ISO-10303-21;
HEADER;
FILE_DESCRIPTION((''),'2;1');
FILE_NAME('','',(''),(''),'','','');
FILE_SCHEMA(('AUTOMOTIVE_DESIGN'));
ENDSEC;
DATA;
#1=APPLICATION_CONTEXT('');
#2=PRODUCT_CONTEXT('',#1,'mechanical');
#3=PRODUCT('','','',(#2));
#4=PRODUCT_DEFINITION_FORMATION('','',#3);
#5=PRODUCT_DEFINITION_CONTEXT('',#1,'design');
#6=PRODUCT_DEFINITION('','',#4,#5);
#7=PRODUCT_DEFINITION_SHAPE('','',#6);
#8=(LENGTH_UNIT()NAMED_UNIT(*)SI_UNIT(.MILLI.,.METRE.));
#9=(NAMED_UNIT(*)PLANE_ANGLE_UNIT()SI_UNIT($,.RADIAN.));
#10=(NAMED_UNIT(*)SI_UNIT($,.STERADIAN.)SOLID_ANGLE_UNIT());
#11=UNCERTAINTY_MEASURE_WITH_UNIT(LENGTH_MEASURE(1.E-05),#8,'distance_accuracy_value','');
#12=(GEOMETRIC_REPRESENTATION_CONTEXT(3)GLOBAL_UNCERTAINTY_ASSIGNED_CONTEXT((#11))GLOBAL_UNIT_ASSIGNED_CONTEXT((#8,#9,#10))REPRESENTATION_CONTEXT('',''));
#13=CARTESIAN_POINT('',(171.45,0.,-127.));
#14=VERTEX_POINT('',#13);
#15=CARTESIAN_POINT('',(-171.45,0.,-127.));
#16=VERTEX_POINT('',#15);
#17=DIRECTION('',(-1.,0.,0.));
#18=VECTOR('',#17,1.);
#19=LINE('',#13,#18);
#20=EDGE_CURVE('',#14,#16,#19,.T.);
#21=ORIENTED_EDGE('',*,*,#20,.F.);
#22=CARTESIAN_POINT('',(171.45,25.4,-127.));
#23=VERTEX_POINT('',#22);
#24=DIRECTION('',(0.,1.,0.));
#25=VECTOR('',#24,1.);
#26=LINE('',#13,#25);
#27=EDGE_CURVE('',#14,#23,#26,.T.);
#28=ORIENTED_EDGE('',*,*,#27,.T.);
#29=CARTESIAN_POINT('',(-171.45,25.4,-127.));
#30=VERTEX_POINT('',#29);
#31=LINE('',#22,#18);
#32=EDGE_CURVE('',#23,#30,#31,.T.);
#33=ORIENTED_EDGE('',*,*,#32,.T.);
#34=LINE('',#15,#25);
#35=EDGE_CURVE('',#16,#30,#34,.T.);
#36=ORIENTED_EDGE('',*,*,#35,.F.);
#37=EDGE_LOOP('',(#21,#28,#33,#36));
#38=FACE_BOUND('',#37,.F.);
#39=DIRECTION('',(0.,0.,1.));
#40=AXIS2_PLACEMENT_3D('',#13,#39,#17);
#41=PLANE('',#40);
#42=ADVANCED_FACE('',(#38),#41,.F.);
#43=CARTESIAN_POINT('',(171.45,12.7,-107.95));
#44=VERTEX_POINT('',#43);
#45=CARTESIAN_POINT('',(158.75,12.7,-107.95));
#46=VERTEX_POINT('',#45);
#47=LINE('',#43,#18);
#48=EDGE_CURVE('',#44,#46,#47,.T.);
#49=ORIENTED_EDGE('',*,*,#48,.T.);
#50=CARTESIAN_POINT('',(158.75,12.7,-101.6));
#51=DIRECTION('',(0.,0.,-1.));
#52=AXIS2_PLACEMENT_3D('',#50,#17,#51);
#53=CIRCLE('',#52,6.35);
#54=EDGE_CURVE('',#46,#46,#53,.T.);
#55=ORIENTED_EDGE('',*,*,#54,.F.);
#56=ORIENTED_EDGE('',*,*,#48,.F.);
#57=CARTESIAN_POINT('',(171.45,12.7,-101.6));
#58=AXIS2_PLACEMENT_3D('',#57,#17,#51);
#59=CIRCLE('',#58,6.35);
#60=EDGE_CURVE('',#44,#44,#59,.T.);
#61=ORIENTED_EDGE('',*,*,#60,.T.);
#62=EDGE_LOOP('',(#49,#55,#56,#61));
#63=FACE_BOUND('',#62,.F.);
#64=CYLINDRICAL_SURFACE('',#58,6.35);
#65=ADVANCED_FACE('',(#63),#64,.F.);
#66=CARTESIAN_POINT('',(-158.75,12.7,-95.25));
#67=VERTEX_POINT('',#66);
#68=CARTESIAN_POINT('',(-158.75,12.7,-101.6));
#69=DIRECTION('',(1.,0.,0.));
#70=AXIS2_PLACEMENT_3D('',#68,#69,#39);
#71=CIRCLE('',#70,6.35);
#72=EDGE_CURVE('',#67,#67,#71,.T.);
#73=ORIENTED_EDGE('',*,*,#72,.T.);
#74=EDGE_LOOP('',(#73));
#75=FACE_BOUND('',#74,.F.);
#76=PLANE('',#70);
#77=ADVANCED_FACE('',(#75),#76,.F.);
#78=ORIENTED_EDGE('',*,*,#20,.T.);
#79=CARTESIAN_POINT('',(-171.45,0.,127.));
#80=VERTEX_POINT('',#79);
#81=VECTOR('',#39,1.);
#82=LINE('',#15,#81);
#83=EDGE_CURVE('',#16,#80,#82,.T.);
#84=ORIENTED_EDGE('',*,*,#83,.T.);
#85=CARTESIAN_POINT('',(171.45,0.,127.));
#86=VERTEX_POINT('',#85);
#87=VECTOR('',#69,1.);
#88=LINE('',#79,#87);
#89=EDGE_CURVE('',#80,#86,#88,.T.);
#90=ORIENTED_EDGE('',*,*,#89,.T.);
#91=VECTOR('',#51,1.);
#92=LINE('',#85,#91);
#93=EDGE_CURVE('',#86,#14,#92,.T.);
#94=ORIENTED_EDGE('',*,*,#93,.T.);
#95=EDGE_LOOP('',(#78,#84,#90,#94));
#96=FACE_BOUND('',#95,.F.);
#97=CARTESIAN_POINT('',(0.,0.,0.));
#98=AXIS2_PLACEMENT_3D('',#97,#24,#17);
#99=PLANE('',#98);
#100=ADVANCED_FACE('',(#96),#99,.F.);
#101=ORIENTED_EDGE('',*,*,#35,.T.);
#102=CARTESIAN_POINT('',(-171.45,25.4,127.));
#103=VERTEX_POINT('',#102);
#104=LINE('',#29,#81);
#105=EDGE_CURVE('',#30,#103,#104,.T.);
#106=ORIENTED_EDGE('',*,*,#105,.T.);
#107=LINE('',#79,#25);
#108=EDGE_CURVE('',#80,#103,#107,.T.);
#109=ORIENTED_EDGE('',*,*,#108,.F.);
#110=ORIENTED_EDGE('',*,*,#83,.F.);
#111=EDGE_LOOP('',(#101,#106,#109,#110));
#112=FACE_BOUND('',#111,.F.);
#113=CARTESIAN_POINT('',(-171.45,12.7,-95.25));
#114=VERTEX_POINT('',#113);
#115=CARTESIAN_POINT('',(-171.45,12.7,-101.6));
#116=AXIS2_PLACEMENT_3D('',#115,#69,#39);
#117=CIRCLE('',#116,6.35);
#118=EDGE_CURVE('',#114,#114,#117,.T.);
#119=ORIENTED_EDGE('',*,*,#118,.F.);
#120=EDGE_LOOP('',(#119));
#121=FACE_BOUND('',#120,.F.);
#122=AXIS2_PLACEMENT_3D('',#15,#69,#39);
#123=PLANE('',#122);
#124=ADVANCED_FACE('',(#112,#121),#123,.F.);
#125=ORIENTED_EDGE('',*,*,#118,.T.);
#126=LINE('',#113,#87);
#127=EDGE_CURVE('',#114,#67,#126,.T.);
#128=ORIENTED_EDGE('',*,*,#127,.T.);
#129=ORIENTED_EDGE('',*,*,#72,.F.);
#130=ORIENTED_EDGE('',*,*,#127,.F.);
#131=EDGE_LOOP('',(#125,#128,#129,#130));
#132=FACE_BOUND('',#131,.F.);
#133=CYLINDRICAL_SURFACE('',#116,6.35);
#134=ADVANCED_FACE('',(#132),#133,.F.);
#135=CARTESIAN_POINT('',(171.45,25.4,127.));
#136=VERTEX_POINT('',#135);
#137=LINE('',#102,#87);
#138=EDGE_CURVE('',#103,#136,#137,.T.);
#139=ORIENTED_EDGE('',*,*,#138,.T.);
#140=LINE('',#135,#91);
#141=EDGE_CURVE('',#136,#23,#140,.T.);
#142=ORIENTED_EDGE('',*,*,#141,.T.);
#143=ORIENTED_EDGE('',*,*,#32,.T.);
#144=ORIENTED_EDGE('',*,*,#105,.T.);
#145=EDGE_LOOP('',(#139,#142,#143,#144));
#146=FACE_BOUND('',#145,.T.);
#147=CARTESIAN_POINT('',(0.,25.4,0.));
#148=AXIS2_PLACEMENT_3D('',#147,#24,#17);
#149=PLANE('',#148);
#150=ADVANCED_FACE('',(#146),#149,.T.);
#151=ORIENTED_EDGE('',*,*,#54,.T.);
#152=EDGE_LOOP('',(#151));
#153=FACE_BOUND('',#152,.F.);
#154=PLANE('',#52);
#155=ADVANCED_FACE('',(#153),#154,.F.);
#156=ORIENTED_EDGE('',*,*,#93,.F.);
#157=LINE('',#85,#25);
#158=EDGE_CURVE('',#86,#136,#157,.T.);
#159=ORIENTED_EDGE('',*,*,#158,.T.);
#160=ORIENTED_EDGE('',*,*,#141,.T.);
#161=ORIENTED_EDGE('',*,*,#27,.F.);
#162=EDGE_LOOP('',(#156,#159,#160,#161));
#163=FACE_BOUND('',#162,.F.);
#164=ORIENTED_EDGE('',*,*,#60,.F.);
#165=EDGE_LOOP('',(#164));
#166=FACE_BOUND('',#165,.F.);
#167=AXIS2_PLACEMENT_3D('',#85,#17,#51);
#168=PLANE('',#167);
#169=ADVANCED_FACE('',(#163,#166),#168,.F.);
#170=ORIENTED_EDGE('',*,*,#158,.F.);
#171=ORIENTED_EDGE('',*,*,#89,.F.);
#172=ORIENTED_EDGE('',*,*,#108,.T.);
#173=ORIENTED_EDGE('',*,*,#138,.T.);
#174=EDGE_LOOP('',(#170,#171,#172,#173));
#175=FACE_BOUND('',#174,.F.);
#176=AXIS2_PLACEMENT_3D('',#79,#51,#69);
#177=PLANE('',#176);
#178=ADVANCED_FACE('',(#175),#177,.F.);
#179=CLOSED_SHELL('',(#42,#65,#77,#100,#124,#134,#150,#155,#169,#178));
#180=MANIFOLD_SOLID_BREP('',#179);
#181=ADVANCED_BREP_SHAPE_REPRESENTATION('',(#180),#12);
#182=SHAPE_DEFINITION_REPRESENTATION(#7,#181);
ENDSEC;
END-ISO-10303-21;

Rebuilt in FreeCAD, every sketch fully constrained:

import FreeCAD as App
import Part
import Sketcher

V = App.Vector
Q = App.Units.Quantity

doc = App.newDocument("Part")
body = doc.addObject("PartDesign::Body", "Body")

# Sketch on XZ plane
sketch1 = doc.addObject("Sketcher::SketchObject", "Sketch")
body.addObject(sketch1)
sketch1.AttachmentSupport = (doc.XZ_Plane, [""])
sketch1.MapMode = "FlatFace"
sketch1.addGeometry(Part.LineSegment(V(-171, -127, 0), V(-171, 127, 0)), False)
sketch1.addGeometry(Part.LineSegment(V(-171, 127, 0), V(171, 127, 0)), False)
sketch1.addGeometry(Part.LineSegment(V(171, 127, 0), V(171, -127, 0)), False)
sketch1.addGeometry(Part.LineSegment(V(171, -127, 0), V(-171, -127, 0)), False)
sketch1.addConstraint(Sketcher.Constraint("Coincident", 0, 2, 1, 1))
sketch1.addConstraint(Sketcher.Constraint("Coincident", 1, 2, 2, 1))
sketch1.addConstraint(Sketcher.Constraint("Coincident", 2, 2, 3, 1))
sketch1.addConstraint(Sketcher.Constraint("Coincident", 3, 2, 0, 1))
sketch1.addConstraint(Sketcher.Constraint("Vertical", 0))
sketch1.addConstraint(Sketcher.Constraint("Horizontal", 1))
sketch1.addConstraint(Sketcher.Constraint("Vertical", 2))
sketch1.addConstraint(Sketcher.Constraint("Horizontal", 3))
sketch1.addConstraint(Sketcher.Constraint("Symmetric", 0, 2, 2, 2, -1, 1))
sketch1.addConstraint(Sketcher.Constraint("DistanceY", 0, 1, 0, 2, Q("10 in")))
sketch1.addConstraint(Sketcher.Constraint("DistanceX", 1, 1, 1, 2, Q("13.5 in")))
pad1 = doc.addObject("PartDesign::Pad", "Pad")
body.addObject(pad1)
pad1.Profile = sketch1
pad1.Length = Q("1 in")
pad1.Reversed = True

# Sketch on YZ plane
sketch2 = doc.addObject("Sketcher::SketchObject", "Sketch001")
body.addObject(sketch2)
sketch2.AttachmentSupport = (doc.YZ_Plane, [""])
sketch2.MapMode = "FlatFace"
sketch2.AttachmentOffset = App.Placement(V(0, 0, 6.75 * 25.4), App.Rotation())
sketch2.addGeometry(Part.Circle(V(13, -102, 0), V(0, 0, 1), 6), False)
sketch2.addConstraint(Sketcher.Constraint("Diameter", 0, Q("0.5 in")))
sketch2.addConstraint(Sketcher.Constraint("DistanceY", 0, 3, -1, 1, Q("4 in")))
sketch2.addConstraint(Sketcher.Constraint("DistanceX", -1, 1, 0, 3, Q("0.5 in")))
doc.recompute()
hole = doc.addObject("PartDesign::Hole", "Hole")
body.addObject(hole)
hole.Profile = sketch2
hole.ThreadType = "None"
hole.Diameter = Q("0.5 in")
hole.DepthType = "Dimension"
hole.Depth = Q("0.5 in")
hole.DrillPoint = "Flat"

# Sketch on YZ plane
sketch3 = doc.addObject("Sketcher::SketchObject", "Sketch002")
body.addObject(sketch3)
sketch3.AttachmentSupport = (doc.YZ_Plane, [""])
sketch3.MapMode = "FlatFace"
sketch3.AttachmentOffset = App.Placement(V(0, 0, -6.75 * 25.4), App.Rotation())
sketch3.addGeometry(Part.Circle(V(13, -102, 0), V(0, 0, 1), 6), False)
sketch3.addConstraint(Sketcher.Constraint("Diameter", 0, Q("0.5 in")))
sketch3.addConstraint(Sketcher.Constraint("DistanceY", 0, 3, -1, 1, Q("4 in")))
sketch3.addConstraint(Sketcher.Constraint("DistanceX", -1, 1, 0, 3, Q("0.5 in")))
doc.recompute()
hole2 = doc.addObject("PartDesign::Hole", "Hole001")
body.addObject(hole2)
hole2.Profile = sketch3
hole2.ThreadType = "None"
hole2.Diameter = Q("0.5 in")
hole2.DepthType = "Dimension"
hole2.Depth = Q("0.5 in")
hole2.DrillPoint = "Flat"
hole2.Reversed = True

doc.recompute()
